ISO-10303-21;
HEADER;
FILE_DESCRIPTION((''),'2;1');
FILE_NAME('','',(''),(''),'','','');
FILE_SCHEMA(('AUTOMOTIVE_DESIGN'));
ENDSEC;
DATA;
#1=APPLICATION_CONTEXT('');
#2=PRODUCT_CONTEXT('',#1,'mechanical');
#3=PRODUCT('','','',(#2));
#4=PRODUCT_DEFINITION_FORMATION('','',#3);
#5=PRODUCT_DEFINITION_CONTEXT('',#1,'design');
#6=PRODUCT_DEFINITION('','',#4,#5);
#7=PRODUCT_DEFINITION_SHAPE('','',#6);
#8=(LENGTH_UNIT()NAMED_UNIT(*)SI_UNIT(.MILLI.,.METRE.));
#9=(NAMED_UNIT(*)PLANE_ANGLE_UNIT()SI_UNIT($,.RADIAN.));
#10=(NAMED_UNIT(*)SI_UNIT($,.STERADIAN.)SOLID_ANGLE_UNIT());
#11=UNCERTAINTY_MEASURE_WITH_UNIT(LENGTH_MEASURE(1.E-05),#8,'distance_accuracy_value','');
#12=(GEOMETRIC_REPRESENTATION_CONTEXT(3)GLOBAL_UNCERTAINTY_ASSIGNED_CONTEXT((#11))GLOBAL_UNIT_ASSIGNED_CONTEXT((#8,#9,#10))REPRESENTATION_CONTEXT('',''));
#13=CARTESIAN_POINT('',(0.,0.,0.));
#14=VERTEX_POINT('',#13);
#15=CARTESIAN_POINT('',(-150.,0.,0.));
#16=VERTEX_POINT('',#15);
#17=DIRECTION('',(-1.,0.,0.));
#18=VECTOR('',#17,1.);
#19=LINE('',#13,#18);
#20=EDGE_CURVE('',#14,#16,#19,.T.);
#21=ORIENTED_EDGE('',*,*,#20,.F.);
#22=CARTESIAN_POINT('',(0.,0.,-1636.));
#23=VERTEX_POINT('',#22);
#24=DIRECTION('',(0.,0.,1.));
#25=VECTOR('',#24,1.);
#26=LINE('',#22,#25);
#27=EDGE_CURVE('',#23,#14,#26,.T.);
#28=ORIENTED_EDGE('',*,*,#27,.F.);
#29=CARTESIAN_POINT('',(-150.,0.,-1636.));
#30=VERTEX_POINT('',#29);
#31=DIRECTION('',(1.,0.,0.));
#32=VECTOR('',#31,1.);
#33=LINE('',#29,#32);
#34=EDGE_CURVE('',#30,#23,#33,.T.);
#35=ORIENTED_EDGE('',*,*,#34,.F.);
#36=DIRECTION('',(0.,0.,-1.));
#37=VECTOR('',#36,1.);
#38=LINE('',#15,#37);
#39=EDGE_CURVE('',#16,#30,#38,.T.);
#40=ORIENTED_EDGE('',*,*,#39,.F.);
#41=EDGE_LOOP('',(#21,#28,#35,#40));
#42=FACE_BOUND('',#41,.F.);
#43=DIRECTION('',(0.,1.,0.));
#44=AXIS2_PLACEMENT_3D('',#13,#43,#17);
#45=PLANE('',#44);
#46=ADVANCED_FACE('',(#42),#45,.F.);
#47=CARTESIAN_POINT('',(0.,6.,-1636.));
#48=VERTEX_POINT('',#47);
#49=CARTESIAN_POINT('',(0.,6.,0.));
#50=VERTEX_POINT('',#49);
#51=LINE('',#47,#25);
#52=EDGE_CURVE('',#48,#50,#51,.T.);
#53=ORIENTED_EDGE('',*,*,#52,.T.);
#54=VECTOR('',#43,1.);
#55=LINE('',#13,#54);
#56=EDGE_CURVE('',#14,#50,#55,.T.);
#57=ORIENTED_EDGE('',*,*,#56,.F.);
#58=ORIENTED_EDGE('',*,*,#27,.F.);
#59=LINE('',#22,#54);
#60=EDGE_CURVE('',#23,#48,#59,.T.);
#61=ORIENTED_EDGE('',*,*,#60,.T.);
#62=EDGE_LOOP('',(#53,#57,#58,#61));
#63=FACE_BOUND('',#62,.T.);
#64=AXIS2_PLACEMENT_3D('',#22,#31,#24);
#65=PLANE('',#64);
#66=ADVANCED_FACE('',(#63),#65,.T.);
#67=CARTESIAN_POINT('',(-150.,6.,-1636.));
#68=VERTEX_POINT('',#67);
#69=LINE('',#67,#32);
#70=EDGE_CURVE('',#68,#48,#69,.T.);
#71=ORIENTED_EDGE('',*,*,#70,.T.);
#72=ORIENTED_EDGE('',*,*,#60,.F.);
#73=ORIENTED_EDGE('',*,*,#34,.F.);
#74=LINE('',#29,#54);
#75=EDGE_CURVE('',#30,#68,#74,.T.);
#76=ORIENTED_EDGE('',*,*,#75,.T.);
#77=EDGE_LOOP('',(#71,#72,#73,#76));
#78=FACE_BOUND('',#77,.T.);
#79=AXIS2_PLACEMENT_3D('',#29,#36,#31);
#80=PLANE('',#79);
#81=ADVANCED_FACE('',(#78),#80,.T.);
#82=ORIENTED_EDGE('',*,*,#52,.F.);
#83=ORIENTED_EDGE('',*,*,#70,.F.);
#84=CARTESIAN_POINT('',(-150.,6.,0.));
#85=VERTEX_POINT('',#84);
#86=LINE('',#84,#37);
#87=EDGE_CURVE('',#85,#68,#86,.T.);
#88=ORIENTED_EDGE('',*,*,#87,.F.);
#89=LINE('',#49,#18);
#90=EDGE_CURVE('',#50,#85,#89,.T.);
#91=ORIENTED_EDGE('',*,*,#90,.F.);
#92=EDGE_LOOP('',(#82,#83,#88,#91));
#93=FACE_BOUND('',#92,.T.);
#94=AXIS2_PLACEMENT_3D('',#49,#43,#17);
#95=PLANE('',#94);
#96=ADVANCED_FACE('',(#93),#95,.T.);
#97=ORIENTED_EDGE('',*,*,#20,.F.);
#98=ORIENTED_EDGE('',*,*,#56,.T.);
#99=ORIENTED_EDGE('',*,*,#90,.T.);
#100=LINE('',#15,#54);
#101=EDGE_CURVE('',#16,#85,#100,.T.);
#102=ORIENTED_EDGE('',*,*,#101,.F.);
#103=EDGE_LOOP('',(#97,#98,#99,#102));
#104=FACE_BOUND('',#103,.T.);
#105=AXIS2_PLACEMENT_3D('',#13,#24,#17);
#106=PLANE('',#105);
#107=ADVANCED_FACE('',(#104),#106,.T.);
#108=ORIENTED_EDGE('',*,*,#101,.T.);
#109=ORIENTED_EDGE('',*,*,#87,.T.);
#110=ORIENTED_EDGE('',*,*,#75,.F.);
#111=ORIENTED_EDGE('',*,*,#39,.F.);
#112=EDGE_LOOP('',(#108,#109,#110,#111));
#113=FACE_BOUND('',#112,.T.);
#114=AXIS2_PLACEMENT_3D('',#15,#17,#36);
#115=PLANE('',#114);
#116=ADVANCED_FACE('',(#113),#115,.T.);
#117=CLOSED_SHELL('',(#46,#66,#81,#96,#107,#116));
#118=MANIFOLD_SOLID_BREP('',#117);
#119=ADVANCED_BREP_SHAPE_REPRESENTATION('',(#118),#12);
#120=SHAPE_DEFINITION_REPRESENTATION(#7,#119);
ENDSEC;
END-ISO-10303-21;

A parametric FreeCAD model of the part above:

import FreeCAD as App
import Part
import Sketcher
from FreeCAD import Vector
Q = App.Units.Quantity

doc = App.newDocument("Part")
body = doc.addObject("PartDesign::Body", "Body")

sketch1 = body.newObject("Sketcher::SketchObject", "Sketch")
sketch1.AttachmentSupport = (doc.getObject("XZ_Plane"), [""])
sketch1.MapMode = "FlatFace"
sketch1.addGeometry([
    Part.LineSegment(Vector(-150, 0, 0), Vector(0, 0, 0)),
    Part.LineSegment(Vector(0, 0, 0), Vector(0, -1636, 0)),
    Part.LineSegment(Vector(0, -1636, 0), Vector(-150, -1636, 0)),
    Part.LineSegment(Vector(-150, -1636, 0), Vector(-150, 0, 0)),
], False)
sketch1.addConstraint([
    Sketcher.Constraint("Coincident", 0, 2, 1, 1),
    Sketcher.Constraint("Coincident", 1, 2, 2, 1),
    Sketcher.Constraint("Coincident", 2, 2, 3, 1),
    Sketcher.Constraint("Coincident", 3, 2, 0, 1),
    Sketcher.Constraint("Horizontal", 0),
    Sketcher.Constraint("Vertical", 1),
    Sketcher.Constraint("Horizontal", 2),
    Sketcher.Constraint("Vertical", 3),
    Sketcher.Constraint("Coincident", 0, 2, -1, 1),
    Sketcher.Constraint("DistanceX", 0, 1, 0, 2, Q("150 mm")),
    Sketcher.Constraint("DistanceY", 1, 2, 1, 1, Q("1636 mm")),
])
pad1 = body.newObject("PartDesign::Pad", "Pad")
pad1.Profile = sketch1
pad1.Length = 6
pad1.Reversed = True

doc.recompute()
